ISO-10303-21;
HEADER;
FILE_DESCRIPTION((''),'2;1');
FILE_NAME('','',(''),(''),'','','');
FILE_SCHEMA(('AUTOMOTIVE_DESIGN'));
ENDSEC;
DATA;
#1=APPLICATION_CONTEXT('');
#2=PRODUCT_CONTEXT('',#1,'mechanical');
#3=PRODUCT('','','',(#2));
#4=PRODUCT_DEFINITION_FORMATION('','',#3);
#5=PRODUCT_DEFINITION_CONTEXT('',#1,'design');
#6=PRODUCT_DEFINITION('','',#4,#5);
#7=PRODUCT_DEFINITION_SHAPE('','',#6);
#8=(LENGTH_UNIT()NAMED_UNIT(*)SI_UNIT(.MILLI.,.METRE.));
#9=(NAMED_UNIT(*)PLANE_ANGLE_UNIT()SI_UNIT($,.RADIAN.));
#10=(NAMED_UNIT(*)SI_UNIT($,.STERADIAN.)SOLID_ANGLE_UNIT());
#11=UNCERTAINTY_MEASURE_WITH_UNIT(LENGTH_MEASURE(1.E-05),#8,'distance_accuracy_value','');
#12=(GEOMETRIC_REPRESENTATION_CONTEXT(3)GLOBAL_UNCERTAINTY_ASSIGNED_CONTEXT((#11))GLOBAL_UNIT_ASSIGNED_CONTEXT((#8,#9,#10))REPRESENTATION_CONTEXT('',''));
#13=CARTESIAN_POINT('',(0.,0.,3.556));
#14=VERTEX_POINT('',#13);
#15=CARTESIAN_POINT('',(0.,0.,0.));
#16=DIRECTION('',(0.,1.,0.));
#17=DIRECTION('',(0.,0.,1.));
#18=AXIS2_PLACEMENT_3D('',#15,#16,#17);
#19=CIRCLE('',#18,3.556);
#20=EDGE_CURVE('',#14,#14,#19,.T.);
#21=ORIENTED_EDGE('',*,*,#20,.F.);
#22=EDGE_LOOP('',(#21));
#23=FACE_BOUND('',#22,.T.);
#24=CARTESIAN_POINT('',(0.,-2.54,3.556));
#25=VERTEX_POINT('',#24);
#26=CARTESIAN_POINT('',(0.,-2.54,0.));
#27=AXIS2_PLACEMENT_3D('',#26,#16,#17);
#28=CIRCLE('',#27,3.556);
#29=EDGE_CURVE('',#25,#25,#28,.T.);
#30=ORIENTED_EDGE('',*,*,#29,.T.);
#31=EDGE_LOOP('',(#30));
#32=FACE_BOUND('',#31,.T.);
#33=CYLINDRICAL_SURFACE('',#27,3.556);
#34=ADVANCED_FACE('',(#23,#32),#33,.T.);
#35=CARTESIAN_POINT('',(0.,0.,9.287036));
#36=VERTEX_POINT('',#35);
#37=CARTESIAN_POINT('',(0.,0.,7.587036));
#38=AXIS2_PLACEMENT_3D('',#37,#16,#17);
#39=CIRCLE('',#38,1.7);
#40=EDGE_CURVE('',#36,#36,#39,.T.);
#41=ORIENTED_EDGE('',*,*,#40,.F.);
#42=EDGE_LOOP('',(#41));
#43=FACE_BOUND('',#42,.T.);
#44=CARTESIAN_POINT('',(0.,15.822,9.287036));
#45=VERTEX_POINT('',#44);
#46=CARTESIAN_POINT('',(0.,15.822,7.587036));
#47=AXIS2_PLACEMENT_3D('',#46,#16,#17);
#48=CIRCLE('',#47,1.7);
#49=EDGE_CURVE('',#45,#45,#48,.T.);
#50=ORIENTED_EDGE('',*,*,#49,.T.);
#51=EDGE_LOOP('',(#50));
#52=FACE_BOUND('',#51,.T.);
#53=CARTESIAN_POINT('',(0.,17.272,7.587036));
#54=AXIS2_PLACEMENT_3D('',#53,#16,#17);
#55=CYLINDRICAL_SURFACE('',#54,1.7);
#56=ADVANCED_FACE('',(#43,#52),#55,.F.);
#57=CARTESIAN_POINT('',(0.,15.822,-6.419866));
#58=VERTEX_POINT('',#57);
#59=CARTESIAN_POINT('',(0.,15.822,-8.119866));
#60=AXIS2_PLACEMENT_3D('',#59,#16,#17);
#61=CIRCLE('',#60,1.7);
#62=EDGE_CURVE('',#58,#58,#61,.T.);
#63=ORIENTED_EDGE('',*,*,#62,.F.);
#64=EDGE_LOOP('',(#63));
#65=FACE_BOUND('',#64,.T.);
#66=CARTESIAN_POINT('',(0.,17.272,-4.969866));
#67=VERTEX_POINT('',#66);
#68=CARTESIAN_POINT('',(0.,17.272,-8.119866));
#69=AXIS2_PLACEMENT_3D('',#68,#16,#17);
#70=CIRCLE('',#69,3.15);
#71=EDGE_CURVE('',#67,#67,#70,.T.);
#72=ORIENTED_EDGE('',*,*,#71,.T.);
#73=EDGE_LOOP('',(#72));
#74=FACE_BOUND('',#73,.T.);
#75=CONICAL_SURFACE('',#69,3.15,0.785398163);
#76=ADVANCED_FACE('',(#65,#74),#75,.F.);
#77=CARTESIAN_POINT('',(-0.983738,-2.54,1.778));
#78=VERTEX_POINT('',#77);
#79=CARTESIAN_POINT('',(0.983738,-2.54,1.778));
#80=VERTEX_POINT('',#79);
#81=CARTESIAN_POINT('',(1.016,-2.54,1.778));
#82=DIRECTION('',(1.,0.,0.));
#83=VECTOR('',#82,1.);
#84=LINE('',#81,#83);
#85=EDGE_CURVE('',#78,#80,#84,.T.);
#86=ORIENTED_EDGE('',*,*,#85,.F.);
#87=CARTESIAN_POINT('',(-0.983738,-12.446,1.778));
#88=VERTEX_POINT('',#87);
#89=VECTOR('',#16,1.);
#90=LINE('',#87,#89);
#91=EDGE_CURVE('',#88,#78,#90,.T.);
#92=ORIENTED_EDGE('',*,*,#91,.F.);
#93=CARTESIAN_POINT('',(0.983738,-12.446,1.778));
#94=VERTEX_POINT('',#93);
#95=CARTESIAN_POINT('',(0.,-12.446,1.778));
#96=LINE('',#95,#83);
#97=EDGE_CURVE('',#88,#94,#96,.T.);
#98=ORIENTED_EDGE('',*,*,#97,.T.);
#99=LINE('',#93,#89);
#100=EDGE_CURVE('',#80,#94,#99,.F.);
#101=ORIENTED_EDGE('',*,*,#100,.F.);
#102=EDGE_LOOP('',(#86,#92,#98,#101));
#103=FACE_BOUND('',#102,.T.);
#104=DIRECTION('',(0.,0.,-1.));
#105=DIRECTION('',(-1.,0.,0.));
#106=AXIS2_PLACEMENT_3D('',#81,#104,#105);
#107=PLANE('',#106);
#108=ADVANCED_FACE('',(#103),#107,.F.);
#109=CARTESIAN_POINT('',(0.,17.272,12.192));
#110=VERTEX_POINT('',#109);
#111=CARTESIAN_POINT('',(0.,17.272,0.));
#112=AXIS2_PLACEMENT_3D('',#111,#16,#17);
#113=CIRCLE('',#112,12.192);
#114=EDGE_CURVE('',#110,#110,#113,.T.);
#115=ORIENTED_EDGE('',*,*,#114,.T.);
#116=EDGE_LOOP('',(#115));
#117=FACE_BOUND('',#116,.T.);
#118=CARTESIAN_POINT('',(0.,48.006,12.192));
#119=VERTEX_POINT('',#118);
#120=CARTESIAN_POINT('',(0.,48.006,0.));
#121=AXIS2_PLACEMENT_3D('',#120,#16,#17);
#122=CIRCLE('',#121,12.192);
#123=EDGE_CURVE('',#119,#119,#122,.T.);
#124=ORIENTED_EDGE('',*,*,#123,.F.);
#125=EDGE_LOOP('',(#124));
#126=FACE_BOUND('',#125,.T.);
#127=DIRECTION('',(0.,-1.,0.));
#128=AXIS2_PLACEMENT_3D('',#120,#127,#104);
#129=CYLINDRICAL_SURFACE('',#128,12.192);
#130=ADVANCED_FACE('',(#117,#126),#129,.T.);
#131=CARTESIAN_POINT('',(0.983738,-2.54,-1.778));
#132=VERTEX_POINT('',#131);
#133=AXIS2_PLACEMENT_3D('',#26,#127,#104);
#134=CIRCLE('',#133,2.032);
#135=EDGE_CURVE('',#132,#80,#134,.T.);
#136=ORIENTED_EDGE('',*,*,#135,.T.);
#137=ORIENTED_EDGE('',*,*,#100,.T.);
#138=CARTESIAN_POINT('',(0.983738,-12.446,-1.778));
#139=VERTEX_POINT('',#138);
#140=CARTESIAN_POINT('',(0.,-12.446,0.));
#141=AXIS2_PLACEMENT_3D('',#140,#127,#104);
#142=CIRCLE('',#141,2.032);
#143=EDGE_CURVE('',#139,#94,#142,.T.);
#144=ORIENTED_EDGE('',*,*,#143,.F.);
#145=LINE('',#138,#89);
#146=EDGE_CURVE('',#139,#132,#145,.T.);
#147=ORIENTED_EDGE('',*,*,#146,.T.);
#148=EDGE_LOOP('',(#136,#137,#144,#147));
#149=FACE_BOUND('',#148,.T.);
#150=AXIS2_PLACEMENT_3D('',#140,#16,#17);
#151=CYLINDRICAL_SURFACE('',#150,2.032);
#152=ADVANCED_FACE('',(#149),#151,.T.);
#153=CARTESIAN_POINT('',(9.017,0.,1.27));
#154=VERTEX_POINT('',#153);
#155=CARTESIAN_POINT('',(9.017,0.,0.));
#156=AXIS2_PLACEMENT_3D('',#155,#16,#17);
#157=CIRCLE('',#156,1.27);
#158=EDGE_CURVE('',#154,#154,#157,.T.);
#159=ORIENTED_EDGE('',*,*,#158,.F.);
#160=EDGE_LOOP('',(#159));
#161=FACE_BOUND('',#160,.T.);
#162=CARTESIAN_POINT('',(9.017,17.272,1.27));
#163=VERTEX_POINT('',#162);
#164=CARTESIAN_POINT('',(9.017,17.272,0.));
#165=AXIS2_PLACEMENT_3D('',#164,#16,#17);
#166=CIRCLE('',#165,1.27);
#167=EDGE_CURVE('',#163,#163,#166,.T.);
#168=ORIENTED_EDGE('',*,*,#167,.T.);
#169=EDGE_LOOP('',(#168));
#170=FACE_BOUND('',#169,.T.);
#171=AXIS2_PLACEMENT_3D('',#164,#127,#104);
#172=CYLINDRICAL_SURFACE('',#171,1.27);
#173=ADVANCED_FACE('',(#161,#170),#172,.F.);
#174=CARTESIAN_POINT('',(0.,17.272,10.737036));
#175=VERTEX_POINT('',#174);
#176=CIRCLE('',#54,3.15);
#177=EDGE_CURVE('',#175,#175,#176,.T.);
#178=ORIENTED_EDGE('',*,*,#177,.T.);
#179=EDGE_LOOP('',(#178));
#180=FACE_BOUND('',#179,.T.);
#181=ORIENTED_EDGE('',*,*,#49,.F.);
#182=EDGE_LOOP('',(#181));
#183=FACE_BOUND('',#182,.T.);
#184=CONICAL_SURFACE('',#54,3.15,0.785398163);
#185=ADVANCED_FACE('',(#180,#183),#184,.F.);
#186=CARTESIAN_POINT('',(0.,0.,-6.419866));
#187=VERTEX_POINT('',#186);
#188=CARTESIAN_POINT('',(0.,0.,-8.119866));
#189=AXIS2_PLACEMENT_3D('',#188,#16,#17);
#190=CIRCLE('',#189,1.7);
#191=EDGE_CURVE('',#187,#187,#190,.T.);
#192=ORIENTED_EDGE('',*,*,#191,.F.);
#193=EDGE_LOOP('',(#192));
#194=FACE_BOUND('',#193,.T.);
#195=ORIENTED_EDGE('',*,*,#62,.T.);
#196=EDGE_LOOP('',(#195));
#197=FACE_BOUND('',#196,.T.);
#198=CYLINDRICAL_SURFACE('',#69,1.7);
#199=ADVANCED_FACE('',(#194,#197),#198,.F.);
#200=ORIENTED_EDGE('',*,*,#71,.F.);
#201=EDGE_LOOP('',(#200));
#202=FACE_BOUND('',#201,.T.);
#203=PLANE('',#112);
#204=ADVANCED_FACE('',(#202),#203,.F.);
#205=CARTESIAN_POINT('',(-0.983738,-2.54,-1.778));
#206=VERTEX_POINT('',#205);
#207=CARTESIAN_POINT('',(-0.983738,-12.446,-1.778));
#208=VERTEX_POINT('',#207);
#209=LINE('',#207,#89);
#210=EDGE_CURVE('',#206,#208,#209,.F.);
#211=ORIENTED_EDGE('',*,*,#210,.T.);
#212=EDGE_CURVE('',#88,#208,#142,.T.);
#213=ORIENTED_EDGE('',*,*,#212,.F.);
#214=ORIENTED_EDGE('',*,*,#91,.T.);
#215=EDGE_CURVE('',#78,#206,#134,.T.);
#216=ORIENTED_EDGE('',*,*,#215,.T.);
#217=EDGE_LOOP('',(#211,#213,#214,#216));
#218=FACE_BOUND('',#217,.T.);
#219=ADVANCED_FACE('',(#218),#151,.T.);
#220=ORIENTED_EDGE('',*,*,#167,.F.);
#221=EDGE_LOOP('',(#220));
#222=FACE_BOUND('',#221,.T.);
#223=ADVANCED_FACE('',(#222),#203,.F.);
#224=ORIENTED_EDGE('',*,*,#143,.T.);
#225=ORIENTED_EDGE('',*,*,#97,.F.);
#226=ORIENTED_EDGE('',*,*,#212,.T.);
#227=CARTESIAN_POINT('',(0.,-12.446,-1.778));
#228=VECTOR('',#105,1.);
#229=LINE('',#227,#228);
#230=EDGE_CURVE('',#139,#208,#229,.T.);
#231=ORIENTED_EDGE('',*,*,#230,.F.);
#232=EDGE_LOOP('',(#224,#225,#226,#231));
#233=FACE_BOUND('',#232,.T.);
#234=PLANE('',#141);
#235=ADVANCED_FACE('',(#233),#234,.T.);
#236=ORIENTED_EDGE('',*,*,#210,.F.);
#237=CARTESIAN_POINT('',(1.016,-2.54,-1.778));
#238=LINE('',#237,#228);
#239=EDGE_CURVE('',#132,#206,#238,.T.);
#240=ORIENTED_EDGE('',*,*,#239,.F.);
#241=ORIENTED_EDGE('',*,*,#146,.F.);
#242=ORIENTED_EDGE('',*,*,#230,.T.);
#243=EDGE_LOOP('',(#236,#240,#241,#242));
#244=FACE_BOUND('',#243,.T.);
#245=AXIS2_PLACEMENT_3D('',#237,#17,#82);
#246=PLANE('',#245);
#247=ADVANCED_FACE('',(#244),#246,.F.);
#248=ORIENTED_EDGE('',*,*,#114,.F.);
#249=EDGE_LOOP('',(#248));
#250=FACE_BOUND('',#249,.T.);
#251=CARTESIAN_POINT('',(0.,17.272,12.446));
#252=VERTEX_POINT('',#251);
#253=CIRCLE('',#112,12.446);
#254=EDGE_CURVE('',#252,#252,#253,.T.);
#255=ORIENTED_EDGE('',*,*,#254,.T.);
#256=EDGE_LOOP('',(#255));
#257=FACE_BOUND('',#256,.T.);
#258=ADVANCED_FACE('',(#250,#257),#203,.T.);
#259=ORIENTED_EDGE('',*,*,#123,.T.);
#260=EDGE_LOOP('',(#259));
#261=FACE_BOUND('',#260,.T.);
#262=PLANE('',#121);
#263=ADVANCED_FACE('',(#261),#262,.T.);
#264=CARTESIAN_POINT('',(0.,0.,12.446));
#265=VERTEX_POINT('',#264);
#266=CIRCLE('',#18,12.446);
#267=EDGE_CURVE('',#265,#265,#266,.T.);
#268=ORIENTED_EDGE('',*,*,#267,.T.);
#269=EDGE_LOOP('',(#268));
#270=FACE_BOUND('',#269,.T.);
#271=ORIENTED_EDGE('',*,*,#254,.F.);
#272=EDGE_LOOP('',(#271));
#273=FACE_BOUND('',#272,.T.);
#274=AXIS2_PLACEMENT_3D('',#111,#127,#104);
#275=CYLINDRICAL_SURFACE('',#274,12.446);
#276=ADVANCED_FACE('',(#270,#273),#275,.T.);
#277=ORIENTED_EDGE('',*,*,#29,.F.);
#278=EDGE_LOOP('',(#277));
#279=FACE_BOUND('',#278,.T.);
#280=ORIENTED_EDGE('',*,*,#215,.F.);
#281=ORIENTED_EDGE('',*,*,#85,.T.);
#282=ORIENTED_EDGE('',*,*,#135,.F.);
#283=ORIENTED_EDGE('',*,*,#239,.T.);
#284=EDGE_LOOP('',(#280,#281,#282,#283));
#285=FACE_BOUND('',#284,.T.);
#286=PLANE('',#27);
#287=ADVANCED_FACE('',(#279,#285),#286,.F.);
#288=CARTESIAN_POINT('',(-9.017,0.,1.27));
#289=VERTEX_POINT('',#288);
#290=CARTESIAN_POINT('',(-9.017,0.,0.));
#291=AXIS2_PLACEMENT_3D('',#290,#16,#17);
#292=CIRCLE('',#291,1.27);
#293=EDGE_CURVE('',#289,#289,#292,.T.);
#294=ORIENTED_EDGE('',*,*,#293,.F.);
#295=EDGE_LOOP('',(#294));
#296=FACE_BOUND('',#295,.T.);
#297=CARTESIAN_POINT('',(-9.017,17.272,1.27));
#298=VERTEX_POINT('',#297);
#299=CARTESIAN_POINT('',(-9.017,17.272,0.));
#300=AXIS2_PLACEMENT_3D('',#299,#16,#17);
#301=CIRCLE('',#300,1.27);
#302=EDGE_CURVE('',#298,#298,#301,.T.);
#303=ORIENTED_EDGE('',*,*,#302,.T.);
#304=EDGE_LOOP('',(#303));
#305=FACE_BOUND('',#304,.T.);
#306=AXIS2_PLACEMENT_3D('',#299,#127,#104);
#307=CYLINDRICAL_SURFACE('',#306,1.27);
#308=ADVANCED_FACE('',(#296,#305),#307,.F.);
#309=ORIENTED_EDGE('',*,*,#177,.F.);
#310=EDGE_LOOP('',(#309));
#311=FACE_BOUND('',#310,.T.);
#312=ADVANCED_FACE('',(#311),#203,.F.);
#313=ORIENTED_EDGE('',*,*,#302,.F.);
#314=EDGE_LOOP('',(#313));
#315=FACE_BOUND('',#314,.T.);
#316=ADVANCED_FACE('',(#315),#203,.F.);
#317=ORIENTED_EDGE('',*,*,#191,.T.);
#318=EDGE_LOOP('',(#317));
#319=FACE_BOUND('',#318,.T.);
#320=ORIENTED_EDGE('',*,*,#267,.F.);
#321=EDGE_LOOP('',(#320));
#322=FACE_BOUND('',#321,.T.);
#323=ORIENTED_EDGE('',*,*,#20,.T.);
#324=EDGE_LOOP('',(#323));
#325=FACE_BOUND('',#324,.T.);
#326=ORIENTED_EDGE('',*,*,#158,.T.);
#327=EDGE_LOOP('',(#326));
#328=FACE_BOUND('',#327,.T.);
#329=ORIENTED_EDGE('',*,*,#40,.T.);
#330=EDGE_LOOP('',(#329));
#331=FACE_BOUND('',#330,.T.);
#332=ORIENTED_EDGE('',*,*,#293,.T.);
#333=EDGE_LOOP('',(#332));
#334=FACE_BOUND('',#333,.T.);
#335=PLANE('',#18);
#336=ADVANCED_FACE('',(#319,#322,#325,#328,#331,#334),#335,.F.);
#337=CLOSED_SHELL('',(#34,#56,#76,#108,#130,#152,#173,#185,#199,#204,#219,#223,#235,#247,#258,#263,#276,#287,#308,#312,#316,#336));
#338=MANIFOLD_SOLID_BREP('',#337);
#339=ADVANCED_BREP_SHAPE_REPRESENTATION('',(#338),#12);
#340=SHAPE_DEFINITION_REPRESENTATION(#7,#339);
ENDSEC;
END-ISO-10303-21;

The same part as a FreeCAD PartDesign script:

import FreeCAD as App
import Part
import Sketcher
from FreeCAD import Vector
Q = App.Units.Quantity


def add_polygon(sketch, points):
    """Adds a closed chain of lines whose ends are joined by coincident constraints."""
    first, n = sketch.GeometryCount, len(points)
    for a, b in zip(points, points[1:] + points[:1]):
        sketch.addGeometry(Part.LineSegment(App.Vector(*a, 0), App.Vector(*b, 0)), False)
    for i in range(n):
        sketch.addConstraint(Sketcher.Constraint("Coincident", first + i, 2, first + (i + 1) % n, 1))

doc = App.newDocument("Part")
body = doc.addObject("PartDesign::Body", "Body")

# Sketch on XZ plane
sketch1 = body.newObject("Sketcher::SketchObject", "Sketch")
sketch1.AttachmentSupport = (doc.getObject("XZ_Plane"), [""])
sketch1.MapMode = "FlatFace"
sketch1.addGeometry(Part.Circle(Vector(0, 0, 0), Vector(0, 0, 1), 12.446), False)
sketch1.addGeometry(Part.Circle(Vector(-9.017, 0, 0), Vector(0, 0, 1), 1.27), False)
sketch1.addGeometry(Part.Circle(Vector(9.017, 0, 0), Vector(0, 0, 1), 1.27), False)
sketch1.addConstraint(Sketcher.Constraint("Coincident", 0, 3, -1, 1))
sketch1.addConstraint(Sketcher.Constraint("Equal", 1, 2))
sketch1.addConstraint(Sketcher.Constraint("Symmetric", 1, 3, 2, 3, -1, 1))
sketch1.addConstraint(Sketcher.Constraint("PointOnObject", 1, 3, -1))
sketch1.addConstraint(Sketcher.Constraint("Diameter", 1, Q("0.1 in")))
sketch1.addConstraint(Sketcher.Constraint("Diameter", 0, Q("0.98 in")))
sketch1.addConstraint(Sketcher.Constraint("DistanceX", 1, 3, 2, 3, Q("0.71 in")))
pad1 = body.newObject("PartDesign::Pad", "Pad")
pad1.Profile = sketch1
pad1.Length = Q("0.68 in")
pad1.Reversed = True

# Sketch on XZ plane
sketch2 = body.newObject("Sketcher::SketchObject", "Sketch001")
sketch2.AttachmentSupport = (doc.getObject("XZ_Plane"), [""])
sketch2.MapMode = "FlatFace"
sketch2.AttachmentOffset = App.Placement(Vector(0, 0, -0.68 * 25.4), App.Rotation())
sketch2.addGeometry(Part.Circle(Vector(0, -8.119866, 0), Vector(0, 0, 1), 1.7), False)
sketch2.addGeometry(Part.Circle(Vector(0, 7.587036, 0), Vector(0, 0, 1), 1.7), False)
sketch2.addConstraint(Sketcher.Constraint("Equal", 0, 1))
sketch2.addConstraint(Sketcher.Constraint("PointOnObject", 0, 3, -2))
sketch2.addConstraint(Sketcher.Constraint("PointOnObject", 1, 3, -2))
sketch2.addConstraint(Sketcher.Constraint("Diameter", 0, Q("3.4 mm")))
sketch2.addConstraint(Sketcher.Constraint("DistanceY", 0, 3, -1, 1, Q("8.119866 mm")))
sketch2.addConstraint(Sketcher.Constraint("DistanceY", -1, 1, 1, 3, Q("7.587036 mm")))
doc.recompute()
hole = body.newObject("PartDesign::Hole", "Hole")
hole.Profile = sketch2
hole.ThreadType = "None"
hole.Diameter = 3.4
hole.DepthType = "ThroughAll"
hole.HoleCutType = "Countersink"
hole.HoleCutDiameter = 6.3
hole.HoleCutCountersinkAngle = 90
hole.Reversed = True

# Sketch on XZ plane
sketch3 = body.newObject("Sketcher::SketchObject", "Sketch002")
sketch3.AttachmentSupport = (doc.getObject("XZ_Plane"), [""])
sketch3.MapMode = "FlatFace"
sketch3.AttachmentOffset = App.Placement(Vector(0, 0, -0.68 * 25.4), App.Rotation())
sketch3.addGeometry(Part.Circle(Vector(0, 0, 0), Vector(0, 0, 1), 12.192), False)
sketch3.addConstraint(Sketcher.Constraint("Coincident", 0, 3, -1, 1))
sketch3.addConstraint(Sketcher.Constraint("Diameter", 0, Q("0.96 in")))
pad2 = body.newObject("PartDesign::Pad", "Pad001")
pad2.Profile = sketch3
pad2.Length = Q("1.21 in")
pad2.Reversed = True

# Sketch on XZ plane
sketch4 = body.newObject("Sketcher::SketchObject", "Sketch003")
sketch4.AttachmentSupport = (doc.getObject("XZ_Plane"), [""])
sketch4.MapMode = "FlatFace"
sketch4.addGeometry(Part.Circle(Vector(0, 0, 0), Vector(0, 0, 1), 3.556), False)
sketch4.addConstraint(Sketcher.Constraint("Coincident", 0, 3, -1, 1))
sketch4.addConstraint(Sketcher.Constraint("Diameter", 0, Q("0.28 in")))
pad3 = body.newObject("PartDesign::Pad", "Pad002")
pad3.Profile = sketch4
pad3.Length = Q("0.1 in")

# Sketch on XZ plane
sketch5 = body.newObject("Sketcher::SketchObject", "Sketch004")
sketch5.AttachmentSupport = (doc.getObject("XZ_Plane"), [""])
sketch5.MapMode = "FlatFace"
sketch5.AttachmentOffset = App.Placement(Vector(0, 0, 0.1 * 25.4), App.Rotation())
sketch5.addGeometry(Part.Circle(Vector(0, 0, 0), Vector(0, 0, 1), 2.032), False)
sketch5.addConstraint(Sketcher.Constraint("Coincident", 0, 3, -1, 1))
sketch5.addConstraint(Sketcher.Constraint("Diameter", 0, Q("0.16 in")))
pad4 = body.newObject("PartDesign::Pad", "Pad003")
pad4.Profile = sketch5
pad4.Length = Q("0.39 in")

# Sketch on XZ plane
sketch6 = body.newObject("Sketcher::SketchObject", "Sketch005")
sketch6.AttachmentSupport = (doc.getObject("XZ_Plane"), [""])
sketch6.MapMode = "FlatFace"
sketch6.AttachmentOffset = App.Placement(Vector(0, 0, 0.49 * 25.4), App.Rotation())
add_polygon(sketch6, [(1.016, 1.778), (1.016, 2.032), (-1.016, 2.032), (-1.016, 1.778)])  # lines 0-3
add_polygon(sketch6, [(1.016, -2.032), (1.016, -1.778), (-1.016, -1.778), (-1.016, -2.032)])  # lines 4-7
sketch6.addConstraint(Sketcher.Constraint("Vertical", 0))
sketch6.addConstraint(Sketcher.Constraint("Horizontal", 1))
sketch6.addConstraint(Sketcher.Constraint("Vertical", 2))
sketch6.addConstraint(Sketcher.Constraint("Horizontal", 3))
sketch6.addConstraint(Sketcher.Constraint("Vertical", 4))
sketch6.addConstraint(Sketcher.Constraint("Horizontal", 5))
sketch6.addConstraint(Sketcher.Constraint("Vertical", 6))
sketch6.addConstraint(Sketcher.Constraint("Horizontal", 7))
sketch6.addConstraint(Sketcher.Constraint("Symmetric", 2, 2, 4, 2, -1, 1))
sketch6.addConstraint(Sketcher.Constraint("Symmetric", 0, 2, 6, 2, -1, 1))
sketch6.addConstraint(Sketcher.Constraint("Vertical", 3, 2, 4, 2))
sketch6.addConstraint(Sketcher.Constraint("DistanceX", 1, 2, 1, 1, Q("0.08 in")))
sketch6.addConstraint(Sketcher.Constraint("DistanceY", 0, 1, 0, 2, Q("0.01 in")))
sketch6.addConstraint(Sketcher.Constraint("DistanceY", -1, 1, 0, 2, Q("0.08 in")))
pocket1 = body.newObject("PartDesign::Pocket", "Pocket")
pocket1.Profile = sketch6
pocket1.Length = Q("0.39 in")

doc.recompute()
